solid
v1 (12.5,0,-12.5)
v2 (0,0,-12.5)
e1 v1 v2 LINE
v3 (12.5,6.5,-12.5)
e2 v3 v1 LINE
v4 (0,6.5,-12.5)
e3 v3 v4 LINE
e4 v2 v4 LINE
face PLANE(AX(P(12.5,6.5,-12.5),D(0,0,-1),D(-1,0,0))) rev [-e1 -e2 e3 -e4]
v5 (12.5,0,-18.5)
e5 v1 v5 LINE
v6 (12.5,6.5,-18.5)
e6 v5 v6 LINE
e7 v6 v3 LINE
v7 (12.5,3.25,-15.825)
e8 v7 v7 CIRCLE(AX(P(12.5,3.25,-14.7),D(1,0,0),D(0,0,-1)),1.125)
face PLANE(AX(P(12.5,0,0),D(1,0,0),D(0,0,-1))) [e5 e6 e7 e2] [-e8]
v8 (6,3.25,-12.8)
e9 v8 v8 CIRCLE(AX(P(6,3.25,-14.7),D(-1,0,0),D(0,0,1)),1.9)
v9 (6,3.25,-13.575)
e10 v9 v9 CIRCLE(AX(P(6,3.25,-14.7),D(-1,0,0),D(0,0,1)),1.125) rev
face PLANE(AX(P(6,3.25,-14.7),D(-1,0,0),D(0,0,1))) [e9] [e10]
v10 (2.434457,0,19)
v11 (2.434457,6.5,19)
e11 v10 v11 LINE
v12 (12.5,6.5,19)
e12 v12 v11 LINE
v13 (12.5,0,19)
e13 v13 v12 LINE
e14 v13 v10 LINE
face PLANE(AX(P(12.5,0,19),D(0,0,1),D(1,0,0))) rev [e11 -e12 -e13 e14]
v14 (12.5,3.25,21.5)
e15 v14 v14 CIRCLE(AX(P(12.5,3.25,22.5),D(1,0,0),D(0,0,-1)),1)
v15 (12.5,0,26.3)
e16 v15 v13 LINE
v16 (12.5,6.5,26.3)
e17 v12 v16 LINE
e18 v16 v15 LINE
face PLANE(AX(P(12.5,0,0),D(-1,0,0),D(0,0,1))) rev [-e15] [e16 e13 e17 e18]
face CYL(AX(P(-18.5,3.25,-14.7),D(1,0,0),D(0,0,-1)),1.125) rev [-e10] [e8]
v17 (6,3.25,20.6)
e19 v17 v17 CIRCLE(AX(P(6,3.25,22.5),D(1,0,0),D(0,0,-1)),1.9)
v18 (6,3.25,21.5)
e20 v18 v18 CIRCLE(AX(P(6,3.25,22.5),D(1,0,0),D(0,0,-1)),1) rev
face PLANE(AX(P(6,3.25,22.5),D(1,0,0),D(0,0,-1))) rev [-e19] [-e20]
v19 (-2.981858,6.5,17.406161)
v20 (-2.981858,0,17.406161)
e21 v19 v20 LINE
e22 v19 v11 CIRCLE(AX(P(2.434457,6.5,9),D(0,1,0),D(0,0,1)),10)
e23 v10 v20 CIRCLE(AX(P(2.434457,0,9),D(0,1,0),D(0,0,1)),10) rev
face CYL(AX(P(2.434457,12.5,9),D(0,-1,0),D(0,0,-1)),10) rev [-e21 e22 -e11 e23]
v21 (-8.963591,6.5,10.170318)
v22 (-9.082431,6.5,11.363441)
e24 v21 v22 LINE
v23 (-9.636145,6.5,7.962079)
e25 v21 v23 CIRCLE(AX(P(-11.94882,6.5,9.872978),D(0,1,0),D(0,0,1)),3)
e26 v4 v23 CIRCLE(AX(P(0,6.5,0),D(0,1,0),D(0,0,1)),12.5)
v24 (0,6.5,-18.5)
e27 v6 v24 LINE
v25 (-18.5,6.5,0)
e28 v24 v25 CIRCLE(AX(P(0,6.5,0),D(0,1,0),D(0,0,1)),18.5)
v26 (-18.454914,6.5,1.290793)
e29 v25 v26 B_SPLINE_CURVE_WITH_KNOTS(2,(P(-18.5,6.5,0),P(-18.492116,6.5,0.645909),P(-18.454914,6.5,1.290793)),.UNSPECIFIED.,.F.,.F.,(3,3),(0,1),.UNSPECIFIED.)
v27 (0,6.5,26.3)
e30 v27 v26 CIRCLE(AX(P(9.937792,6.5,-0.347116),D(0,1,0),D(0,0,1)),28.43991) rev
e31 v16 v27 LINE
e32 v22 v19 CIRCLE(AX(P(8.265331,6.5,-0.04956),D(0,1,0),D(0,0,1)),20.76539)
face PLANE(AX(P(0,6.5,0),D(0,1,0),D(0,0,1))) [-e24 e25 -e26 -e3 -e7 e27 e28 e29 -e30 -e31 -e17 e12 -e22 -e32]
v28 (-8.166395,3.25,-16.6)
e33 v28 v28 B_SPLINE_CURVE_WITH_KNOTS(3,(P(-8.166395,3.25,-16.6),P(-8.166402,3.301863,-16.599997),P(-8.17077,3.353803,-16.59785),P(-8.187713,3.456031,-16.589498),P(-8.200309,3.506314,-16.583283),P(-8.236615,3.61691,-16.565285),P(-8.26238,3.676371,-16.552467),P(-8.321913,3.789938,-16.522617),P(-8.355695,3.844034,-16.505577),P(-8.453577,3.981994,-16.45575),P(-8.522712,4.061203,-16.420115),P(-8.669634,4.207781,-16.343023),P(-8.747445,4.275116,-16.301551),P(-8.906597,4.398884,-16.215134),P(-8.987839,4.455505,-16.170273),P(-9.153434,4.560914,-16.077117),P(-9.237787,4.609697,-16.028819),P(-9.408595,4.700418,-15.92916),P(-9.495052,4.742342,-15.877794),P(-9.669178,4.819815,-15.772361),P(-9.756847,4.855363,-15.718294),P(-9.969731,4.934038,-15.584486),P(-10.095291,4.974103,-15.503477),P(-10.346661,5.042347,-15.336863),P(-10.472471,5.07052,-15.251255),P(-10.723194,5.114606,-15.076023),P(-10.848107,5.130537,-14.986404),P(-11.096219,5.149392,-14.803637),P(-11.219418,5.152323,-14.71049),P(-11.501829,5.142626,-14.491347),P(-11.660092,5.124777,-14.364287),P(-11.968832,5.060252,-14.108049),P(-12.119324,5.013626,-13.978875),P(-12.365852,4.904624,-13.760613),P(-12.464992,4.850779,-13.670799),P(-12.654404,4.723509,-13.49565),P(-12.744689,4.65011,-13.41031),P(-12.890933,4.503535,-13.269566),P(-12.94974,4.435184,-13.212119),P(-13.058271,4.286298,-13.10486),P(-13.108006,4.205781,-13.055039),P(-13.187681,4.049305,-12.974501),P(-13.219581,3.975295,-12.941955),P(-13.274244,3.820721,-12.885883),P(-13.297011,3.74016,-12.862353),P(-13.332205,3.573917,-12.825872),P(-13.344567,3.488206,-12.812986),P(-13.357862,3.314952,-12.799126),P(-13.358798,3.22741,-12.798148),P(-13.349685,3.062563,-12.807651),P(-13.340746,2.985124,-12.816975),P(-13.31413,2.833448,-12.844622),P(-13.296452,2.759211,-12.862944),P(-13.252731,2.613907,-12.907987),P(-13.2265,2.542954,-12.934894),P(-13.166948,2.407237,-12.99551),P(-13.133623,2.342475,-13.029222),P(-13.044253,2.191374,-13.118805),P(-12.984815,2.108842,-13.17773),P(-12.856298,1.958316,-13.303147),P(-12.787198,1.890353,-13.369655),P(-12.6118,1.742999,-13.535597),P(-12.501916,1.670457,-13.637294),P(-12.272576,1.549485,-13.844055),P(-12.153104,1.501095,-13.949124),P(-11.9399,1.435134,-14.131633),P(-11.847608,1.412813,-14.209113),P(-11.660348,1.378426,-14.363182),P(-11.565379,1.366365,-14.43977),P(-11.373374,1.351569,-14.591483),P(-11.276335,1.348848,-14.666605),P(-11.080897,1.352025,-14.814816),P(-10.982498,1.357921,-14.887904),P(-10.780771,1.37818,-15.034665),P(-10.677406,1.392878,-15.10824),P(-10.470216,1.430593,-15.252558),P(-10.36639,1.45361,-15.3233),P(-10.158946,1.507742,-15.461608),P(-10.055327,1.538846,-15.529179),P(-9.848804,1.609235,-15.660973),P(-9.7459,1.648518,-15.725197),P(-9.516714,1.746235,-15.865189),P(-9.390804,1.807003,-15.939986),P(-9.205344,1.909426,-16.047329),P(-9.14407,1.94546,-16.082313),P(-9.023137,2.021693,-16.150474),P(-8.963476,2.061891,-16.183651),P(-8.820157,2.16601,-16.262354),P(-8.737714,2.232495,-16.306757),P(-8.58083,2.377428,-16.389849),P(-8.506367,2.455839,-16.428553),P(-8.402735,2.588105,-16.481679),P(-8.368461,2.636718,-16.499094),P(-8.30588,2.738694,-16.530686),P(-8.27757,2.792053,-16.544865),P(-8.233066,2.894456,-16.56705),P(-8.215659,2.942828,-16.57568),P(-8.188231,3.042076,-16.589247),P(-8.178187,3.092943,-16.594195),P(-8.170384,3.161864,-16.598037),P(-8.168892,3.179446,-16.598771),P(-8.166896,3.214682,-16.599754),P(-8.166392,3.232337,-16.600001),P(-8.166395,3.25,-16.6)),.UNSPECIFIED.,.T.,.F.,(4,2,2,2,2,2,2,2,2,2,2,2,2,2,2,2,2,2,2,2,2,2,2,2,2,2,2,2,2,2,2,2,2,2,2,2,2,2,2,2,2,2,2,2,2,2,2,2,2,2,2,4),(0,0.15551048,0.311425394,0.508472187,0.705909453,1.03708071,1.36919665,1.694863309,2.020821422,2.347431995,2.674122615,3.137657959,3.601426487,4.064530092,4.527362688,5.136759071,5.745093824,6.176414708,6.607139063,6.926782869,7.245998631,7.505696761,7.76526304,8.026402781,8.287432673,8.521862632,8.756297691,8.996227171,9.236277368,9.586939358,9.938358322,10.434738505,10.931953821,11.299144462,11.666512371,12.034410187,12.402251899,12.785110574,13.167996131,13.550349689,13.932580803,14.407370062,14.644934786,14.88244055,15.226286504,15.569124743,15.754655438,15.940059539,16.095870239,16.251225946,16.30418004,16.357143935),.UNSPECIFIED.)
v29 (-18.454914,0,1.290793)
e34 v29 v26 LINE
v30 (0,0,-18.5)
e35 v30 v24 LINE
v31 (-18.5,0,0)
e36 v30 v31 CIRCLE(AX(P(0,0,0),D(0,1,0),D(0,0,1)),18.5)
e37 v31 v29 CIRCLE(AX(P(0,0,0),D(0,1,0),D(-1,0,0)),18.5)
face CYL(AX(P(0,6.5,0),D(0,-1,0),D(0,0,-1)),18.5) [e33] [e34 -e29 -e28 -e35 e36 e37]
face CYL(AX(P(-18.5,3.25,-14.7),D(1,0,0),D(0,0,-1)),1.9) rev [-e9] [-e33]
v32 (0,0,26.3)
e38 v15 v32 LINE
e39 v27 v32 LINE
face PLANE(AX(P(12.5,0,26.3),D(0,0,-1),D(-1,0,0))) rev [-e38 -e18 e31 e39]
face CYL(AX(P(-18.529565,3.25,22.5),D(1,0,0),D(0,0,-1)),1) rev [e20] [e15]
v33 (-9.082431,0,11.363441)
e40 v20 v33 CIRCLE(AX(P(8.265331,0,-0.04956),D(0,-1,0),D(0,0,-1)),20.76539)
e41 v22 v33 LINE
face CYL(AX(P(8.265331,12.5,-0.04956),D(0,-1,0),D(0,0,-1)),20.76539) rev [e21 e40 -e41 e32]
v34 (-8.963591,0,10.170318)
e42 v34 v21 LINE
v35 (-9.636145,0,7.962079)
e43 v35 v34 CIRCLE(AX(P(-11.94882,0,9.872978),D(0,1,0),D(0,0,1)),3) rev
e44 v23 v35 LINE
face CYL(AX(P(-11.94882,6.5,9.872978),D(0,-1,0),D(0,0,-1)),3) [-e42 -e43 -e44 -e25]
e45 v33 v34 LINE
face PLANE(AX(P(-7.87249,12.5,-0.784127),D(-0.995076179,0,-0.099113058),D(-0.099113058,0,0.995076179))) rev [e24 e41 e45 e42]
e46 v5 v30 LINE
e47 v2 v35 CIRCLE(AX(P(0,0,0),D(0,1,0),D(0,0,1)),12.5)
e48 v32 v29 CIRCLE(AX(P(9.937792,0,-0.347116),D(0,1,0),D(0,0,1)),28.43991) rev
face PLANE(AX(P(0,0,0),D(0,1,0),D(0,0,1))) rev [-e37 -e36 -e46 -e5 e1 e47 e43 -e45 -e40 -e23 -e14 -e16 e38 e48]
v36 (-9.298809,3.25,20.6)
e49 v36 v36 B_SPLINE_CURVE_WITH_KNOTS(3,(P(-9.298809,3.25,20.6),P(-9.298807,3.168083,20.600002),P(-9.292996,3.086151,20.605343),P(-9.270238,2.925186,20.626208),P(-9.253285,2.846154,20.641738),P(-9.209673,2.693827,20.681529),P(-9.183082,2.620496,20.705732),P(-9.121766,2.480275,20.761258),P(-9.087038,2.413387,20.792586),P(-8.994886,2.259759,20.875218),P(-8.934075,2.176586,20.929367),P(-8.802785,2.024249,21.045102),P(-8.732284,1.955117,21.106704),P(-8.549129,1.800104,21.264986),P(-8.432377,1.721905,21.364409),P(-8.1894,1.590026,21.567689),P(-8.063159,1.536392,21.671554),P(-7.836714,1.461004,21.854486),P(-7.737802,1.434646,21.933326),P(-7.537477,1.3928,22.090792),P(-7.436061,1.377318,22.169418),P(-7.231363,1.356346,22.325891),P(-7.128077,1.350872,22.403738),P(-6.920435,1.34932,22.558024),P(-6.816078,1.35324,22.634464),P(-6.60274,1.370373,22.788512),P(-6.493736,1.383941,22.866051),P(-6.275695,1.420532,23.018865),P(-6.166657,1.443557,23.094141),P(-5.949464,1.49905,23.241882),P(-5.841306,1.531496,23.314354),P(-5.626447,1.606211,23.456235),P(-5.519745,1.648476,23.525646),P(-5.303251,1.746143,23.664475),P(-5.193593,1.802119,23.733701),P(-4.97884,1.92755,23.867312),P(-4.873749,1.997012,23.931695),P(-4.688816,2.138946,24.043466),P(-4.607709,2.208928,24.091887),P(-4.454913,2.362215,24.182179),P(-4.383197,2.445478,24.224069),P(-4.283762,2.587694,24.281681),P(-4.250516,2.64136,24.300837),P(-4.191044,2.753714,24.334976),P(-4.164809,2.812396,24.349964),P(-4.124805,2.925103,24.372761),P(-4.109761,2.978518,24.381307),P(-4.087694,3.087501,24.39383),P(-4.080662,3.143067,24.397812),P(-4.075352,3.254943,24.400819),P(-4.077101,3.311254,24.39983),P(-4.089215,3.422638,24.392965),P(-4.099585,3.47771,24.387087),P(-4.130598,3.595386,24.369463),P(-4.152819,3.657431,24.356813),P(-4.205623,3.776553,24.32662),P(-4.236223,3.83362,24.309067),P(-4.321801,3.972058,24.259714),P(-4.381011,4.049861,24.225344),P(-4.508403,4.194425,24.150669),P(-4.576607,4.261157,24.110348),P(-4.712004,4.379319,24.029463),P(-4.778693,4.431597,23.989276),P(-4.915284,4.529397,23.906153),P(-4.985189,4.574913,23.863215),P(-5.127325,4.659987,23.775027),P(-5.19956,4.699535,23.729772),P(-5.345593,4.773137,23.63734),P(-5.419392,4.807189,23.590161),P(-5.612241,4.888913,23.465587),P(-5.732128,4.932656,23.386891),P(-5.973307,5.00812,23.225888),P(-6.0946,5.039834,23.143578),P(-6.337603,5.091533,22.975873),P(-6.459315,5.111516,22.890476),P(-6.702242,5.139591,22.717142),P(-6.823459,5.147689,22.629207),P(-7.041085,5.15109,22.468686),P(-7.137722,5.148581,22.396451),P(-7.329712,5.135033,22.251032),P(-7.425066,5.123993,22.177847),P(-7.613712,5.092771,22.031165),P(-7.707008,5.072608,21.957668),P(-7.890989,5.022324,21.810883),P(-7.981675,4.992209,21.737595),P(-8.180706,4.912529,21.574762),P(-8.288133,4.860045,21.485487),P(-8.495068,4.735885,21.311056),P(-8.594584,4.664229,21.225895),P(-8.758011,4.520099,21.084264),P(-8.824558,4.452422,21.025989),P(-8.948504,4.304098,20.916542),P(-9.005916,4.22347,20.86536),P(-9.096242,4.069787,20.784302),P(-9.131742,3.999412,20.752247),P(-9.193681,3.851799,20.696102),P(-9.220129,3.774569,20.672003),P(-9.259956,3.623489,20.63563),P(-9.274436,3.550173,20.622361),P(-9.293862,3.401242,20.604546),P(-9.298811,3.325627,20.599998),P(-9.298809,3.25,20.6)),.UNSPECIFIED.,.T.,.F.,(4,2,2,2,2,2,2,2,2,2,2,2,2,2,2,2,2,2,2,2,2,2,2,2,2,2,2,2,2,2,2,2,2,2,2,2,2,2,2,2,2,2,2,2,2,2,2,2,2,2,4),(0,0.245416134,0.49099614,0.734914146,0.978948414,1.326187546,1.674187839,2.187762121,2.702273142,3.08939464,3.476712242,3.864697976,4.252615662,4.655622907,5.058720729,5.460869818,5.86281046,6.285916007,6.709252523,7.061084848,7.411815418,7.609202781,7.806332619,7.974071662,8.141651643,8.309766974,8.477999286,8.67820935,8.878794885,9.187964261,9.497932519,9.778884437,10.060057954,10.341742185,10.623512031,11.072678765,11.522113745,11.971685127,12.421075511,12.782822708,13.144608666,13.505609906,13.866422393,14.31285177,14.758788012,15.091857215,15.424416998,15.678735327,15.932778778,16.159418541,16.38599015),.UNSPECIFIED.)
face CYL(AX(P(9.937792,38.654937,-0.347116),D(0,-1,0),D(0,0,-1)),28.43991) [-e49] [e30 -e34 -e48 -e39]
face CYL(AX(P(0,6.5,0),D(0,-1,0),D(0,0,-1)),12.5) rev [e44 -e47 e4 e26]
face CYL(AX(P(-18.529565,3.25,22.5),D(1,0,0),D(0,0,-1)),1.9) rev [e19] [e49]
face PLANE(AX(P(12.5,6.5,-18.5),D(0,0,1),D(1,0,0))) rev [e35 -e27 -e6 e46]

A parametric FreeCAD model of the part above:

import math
import FreeCAD as App
import Part
import Sketcher

V = App.Vector
Q = App.Units.Quantity


def edges_at(feature, points):
    """Names of the edges that pass closest to the given points."""
    edges = feature.Shape.Edges
    near = lambda p: min(range(len(edges)), key=lambda i: edges[i].distToShape(Part.Vertex(*p))[0])
    return sorted({f"Edge{near(p) + 1}" for p in points})

doc = App.newDocument("Part")
body = doc.addObject("PartDesign::Body", "Body")

sketch1 = body.newObject("Sketcher::SketchObject", "Sketch")
sketch1.AttachmentSupport = (doc.getObject("XZ_Plane"), [""])
sketch1.MapMode = "FlatFace"
sketch1.addGeometry(Part.Circle(V(0, 0, 0), V(0, 0, 1), 18), False)
sketch1.addGeometry(Part.Circle(V(0, 0, 0), V(0, 0, 1), 12), False)
sketch1.addConstraint(Sketcher.Constraint("Coincident", 0, 3, -1, 1))
sketch1.addConstraint(Sketcher.Constraint("Coincident", 1, 3, -1, 1))
sketch1.addConstraint(Sketcher.Constraint("Diameter", 0, Q("37 mm")))
sketch1.addConstraint(Sketcher.Constraint("Diameter", 1, Q("25 mm")))
pad1 = body.newObject("PartDesign::Pad", "Pad")
pad1.Profile = sketch1
pad1.Length = 6.5
pad1.Reversed = True

sketch2 = body.newObject("Sketcher::SketchObject", "Sketch001")
sketch2.AttachmentSupport = (doc.getObject("YZ_Plane"), [""])
sketch2.MapMode = "FlatFace"
sketch2.addGeometry(Part.Circle(V(0, 0, 0), V(0, 0, 1), 47), False)
sketch2.addConstraint(Sketcher.Constraint("Coincident", 0, 3, -1, 1))
sketch2.addConstraint(Sketcher.Constraint("Diameter", 0, Q("93.405729 mm")))
pocket1 = body.newObject("PartDesign::Pocket", "Pocket")
pocket1.Profile = sketch2
pocket1.Type = "ThroughAll"
pocket1.Reversed = True

sketch3 = body.newObject("Sketcher::SketchObject", "Sketch002")
sketch3.AttachmentSupport = (doc.getObject("YZ_Plane"), [""])
sketch3.MapMode = "FlatFace"
sketch3.addGeometry(Part.Circle(V(3.2, -14.7, 0), V(0, 0, 1), 1.1), False)
sketch3.addConstraint(Sketcher.Constraint("Diameter", 0, Q("2.25 mm")))
sketch3.addConstraint(Sketcher.Constraint("DistanceY", 0, 3, -1, 1, Q("14.7 mm")))
sketch3.addConstraint(Sketcher.Constraint("DistanceX", -1, 1, 0, 3, Q("3.25 mm")))
pocket2 = body.newObject("PartDesign::Pocket", "Pocket001")
pocket2.Profile = sketch3
pocket2.Type = "ThroughAll"
pocket2.Midplane = True

sketch4 = body.newObject("Sketcher::SketchObject", "Sketch003")
sketch4.AttachmentSupport = (doc.getObject("YZ_Plane"), [""])
sketch4.MapMode = "FlatFace"
sketch4.AttachmentOffset = App.Placement(V(0, 0, -6.5), App.Rotation())
sketch4.addGeometry(Part.Circle(V(3.2, -14.7, 0), V(0, 0, 1), 1.9), False)
sketch4.addConstraint(Sketcher.Constraint("Diameter", 0, Q("3.8 mm")))
sketch4.addConstraint(Sketcher.Constraint("DistanceY", 0, 3, -1, 1, Q("14.7 mm")))
sketch4.addConstraint(Sketcher.Constraint("DistanceX", -1, 1, 0, 3, Q("3.25 mm")))
pocket3 = body.newObject("PartDesign::Pocket", "Pocket002")
pocket3.Profile = sketch4
pocket3.Type = "ThroughAll"

sketch5 = body.newObject("Sketcher::SketchObject", "Sketch004")
sketch5.AttachmentSupport = (doc.getObject("YZ_Plane"), [""])
sketch5.MapMode = "FlatFace"
sketch5.AttachmentOffset = App.Placement(V(0, 0, 12.5), App.Rotation())
sketch5.addGeometry(Part.LineSegment(V(6.5, -12.5, 0), V(0, -12.5, 0)), False)
sketch5.addGeometry(Part.LineSegment(V(0, -12.5, 0), V(0, -18.5, 0)), False)
sketch5.addGeometry(Part.LineSegment(V(0, -18.5, 0), V(6.5, -18.5, 0)), False)
sketch5.addGeometry(Part.LineSegment(V(6.5, -18.5, 0), V(6.5, -12.5, 0)), False)
sketch5.addGeometry(Part.Circle(V(3.2, -14.7, 0), V(0, 0, 1), 1.1), False)
sketch5.addConstraint(Sketcher.Constraint("Coincident", 0, 2, 1, 1))
sketch5.addConstraint(Sketcher.Constraint("Coincident", 1, 2, 2, 1))
sketch5.addConstraint(Sketcher.Constraint("Coincident", 2, 2, 3, 1))
sketch5.addConstraint(Sketcher.Constraint("Coincident", 3, 2, 0, 1))
sketch5.addConstraint(Sketcher.Constraint("Horizontal", 0))
sketch5.addConstraint(Sketcher.Constraint("Vertical", 1))
sketch5.addConstraint(Sketcher.Constraint("Horizontal", 2))
sketch5.addConstraint(Sketcher.Constraint("Vertical", 3))
sketch5.addConstraint(Sketcher.Constraint("PointOnObject", 0, 2, -2))
sketch5.addConstraint(Sketcher.Constraint("Diameter", 4, Q("2.25 mm")))
sketch5.addConstraint(Sketcher.Constraint("DistanceY", 1, 2, 1, 1, Q("6 mm")))
sketch5.addConstraint(Sketcher.Constraint("DistanceX", 0, 2, 0, 1, Q("6.5 mm")))
sketch5.addConstraint(Sketcher.Constraint("DistanceY", 4, 3, -1, 1, Q("14.7 mm")))
sketch5.addConstraint(Sketcher.Constraint("DistanceY", 0, 2, -1, 1, Q("12.5 mm")))
sketch5.addConstraint(Sketcher.Constraint("DistanceX", -1, 1, 4, 3, Q("3.25 mm")))
pad2 = body.newObject("PartDesign::Pad", "Pad001")
pad2.Profile = sketch5
pad2.Length = 12.5
pad2.Reversed = True

sketch6 = body.newObject("Sketcher::SketchObject", "Sketch005")
sketch6.AttachmentSupport = (doc.getObject("YZ_Plane"), [""])
sketch6.MapMode = "FlatFace"
sketch6.AttachmentOffset = App.Placement(V(0, 0, 6), App.Rotation())
sketch6.addGeometry(Part.Circle(V(3.2, -14.7, 0), V(0, 0, 1), 1.9), False)
sketch6.addConstraint(Sketcher.Constraint("Diameter", 0, Q("3.8 mm")))
sketch6.addConstraint(Sketcher.Constraint("DistanceY", 0, 3, -1, 1, Q("14.7 mm")))
sketch6.addConstraint(Sketcher.Constraint("DistanceX", -1, 1, 0, 3, Q("3.25 mm")))
pocket4 = body.newObject("PartDesign::Pocket", "Pocket003")
pocket4.Profile = sketch6
pocket4.Length = 12.5

sketch7 = body.newObject("Sketcher::SketchObject", "Sketch006")
sketch7.AttachmentSupport = (doc.getObject("XZ_Plane"), [""])
sketch7.MapMode = "FlatFace"
sketch7.addGeometry(Part.LineSegment(V(0, 26, 0), V(0, 18, 0)), False)
sketch7.addGeometry(Part.ArcOfCircle(Part.Circle(V(0, 0, 0), V(0, 0, 1), 19), math.radians(91), math.radians(179)), False)
sketch7.addGeometry(Part.ArcOfCircle(Part.Circle(V(10, 0, 0), V(0, 0, 1), 28), math.radians(110), math.radians(179)), False)
sketch7.addConstraint(Sketcher.Constraint("Coincident", 0, 2, 1, 1))
sketch7.addConstraint(Sketcher.Constraint("Tangent", 1, 2, 2, 2))
sketch7.addConstraint(Sketcher.Constraint("Coincident", 2, 1, 0, 1))
sketch7.addConstraint(Sketcher.Constraint("Vertical", 0))
sketch7.addConstraint(Sketcher.Constraint("PointOnObject", 0, 2, -2))
sketch7.addConstraint(Sketcher.Constraint("PointOnObject", 1, 2, -1))
sketch7.addConstraint(Sketcher.Constraint("Radius", 1, Q("18.729999 mm")))
sketch7.addConstraint(Sketcher.Constraint("DistanceY", 0, 2, 0, 1, Q("7.8 mm")))
sketch7.addConstraint(Sketcher.Constraint("DistanceY", -1, 1, 0, 2, Q("18.5 mm")))
sketch7.addConstraint(Sketcher.Constraint("DistanceX", 1, 2, -1, 1, Q("18.5 mm")))
pad3 = body.newObject("PartDesign::Pad", "Pad002")
pad3.Profile = sketch7
pad3.Length = 6.5
pad3.Reversed = True

sketch8 = body.newObject("Sketcher::SketchObject", "Sketch007")
sketch8.AttachmentSupport = (doc.getObject("XZ_Plane"), [""])
sketch8.MapMode = "FlatFace"
sketch8.addGeometry(Part.ArcOfCircle(Part.Circle(V(0, 0, 0), V(0, 0, 1), 12.5), math.radians(90), math.radians(135)), False)
sketch8.addGeometry(Part.LineSegment(V(0, 12.5, 0), V(0, 19, 0)), False)
sketch8.addGeometry(Part.ArcOfCircle(Part.Circle(V(8.3, 0, 0), V(0, 0, 1), 20.8), math.radians(113), math.radians(147)), False)
sketch8.addGeometry(Part.LineSegment(V(-9.1, 11.4, 0), V(-8.8, 8.8, 0)), False)
sketch8.addConstraint(Sketcher.Constraint("Coincident", 0, 1, 1, 1))
sketch8.addConstraint(Sketcher.Constraint("Coincident", 1, 2, 2, 1))
sketch8.addConstraint(Sketcher.Constraint("Coincident", 2, 2, 3, 1))
sketch8.addConstraint(Sketcher.Constraint("Coincident", 3, 2, 0, 2))
sketch8.addConstraint(Sketcher.Constraint("Vertical", 1))
sketch8.addConstraint(Sketcher.Constraint("Coincident", 0, 3, -1, 1))
sketch8.addConstraint(Sketcher.Constraint("PointOnObject", 0, 1, -2))
sketch8.addConstraint(Sketcher.Constraint("Radius", 0, Q("12.5 mm")))
sketch8.addConstraint(Sketcher.Constraint("DistanceY", 1, 1, 1, 2, Q("6.5 mm")))
sketch8.addConstraint(Sketcher.Constraint("Radius", 2, Q("20.76539 mm")))
sketch8.addConstraint(Sketcher.Constraint("DistanceY", 2, 3, 2, 2, Q("11.413001 mm")))
sketch8.addConstraint(Sketcher.Constraint("DistanceX", -1, 1, 2, 3, Q("8.265331 mm")))
sketch8.addConstraint(Sketcher.Constraint("DistanceY", -1, 1, 3, 2, Q("8.845981 mm")))
pocket5 = body.newObject("PartDesign::Pocket", "Pocket004")
pocket5.Profile = sketch8
pocket5.Length = 12.5
doc.recompute()

fillet = body.newObject("PartDesign::Fillet", "Fillet")
fillet.Base = (pocket5, edges_at(pocket5, [(-8.832, 3.25, 8.846)]))
fillet.Radius = 3

sketch9 = body.newObject("Sketcher::SketchObject", "Sketch008")
sketch9.AttachmentSupport = (doc.getObject("YZ_Plane"), [""])
sketch9.MapMode = "FlatFace"
sketch9.addGeometry(Part.Circle(V(3.2, 22.5, 0), V(0, 0, 1), 1), False)
sketch9.addConstraint(Sketcher.Constraint("Diameter", 0, Q("2 mm")))
sketch9.addConstraint(Sketcher.Constraint("DistanceY", -1, 1, 0, 3, Q("22.5 mm")))
sketch9.addConstraint(Sketcher.Constraint("DistanceX", -1, 1, 0, 3, Q("3.25 mm")))
pocket6 = body.newObject("PartDesign::Pocket", "Pocket005")
pocket6.Profile = sketch9
pocket6.Type = "ThroughAll"

sketch10 = body.newObject("Sketcher::SketchObject", "Sketch009")
sketch10.AttachmentSupport = (doc.getObject("YZ_Plane"), [""])
sketch10.MapMode = "FlatFace"
sketch10.AttachmentOffset = App.Placement(V(0, 0, 12.5), App.Rotation())
sketch10.addGeometry(Part.LineSegment(V(6.5, 26.3, 0), V(0, 26.3, 0)), False)
sketch10.addGeometry(Part.LineSegment(V(0, 26.3, 0), V(0, 19, 0)), False)
sketch10.addGeometry(Part.LineSegment(V(0, 19, 0), V(6.5, 19, 0)), False)
sketch10.addGeometry(Part.LineSegment(V(6.5, 19, 0), V(6.5, 26.3, 0)), False)
sketch10.addGeometry(Part.Circle(V(3.2, 22.5, 0), V(0, 0, 1), 1), False)
sketch10.addConstraint(Sketcher.Constraint("Coincident", 0, 2, 1, 1))
sketch10.addConstraint(Sketcher.Constraint("Coincident", 1, 2, 2, 1))
sketch10.addConstraint(Sketcher.Constraint("Coincident", 2, 2, 3, 1))
sketch10.addConstraint(Sketcher.Constraint("Coincident", 3, 2, 0, 1))
sketch10.addConstraint(Sketcher.Constraint("Horizontal", 0))
sketch10.addConstraint(Sketcher.Constraint("Vertical", 1))
sketch10.addConstraint(Sketcher.Constraint("Horizontal", 2))
sketch10.addConstraint(Sketcher.Constraint("Vertical", 3))
sketch10.addConstraint(Sketcher.Constraint("PointOnObject", 0, 2, -2))
sketch10.addConstraint(Sketcher.Constraint("Diameter", 4, Q("2 mm")))
sketch10.addConstraint(Sketcher.Constraint("DistanceX", 0, 2, 0, 1, Q("6.5 mm")))
sketch10.addConstraint(Sketcher.Constraint("DistanceY", 1, 2, 1, 1, Q("7.3 mm")))
sketch10.addConstraint(Sketcher.Constraint("DistanceY", -1, 1, 1, 2, Q("19 mm")))
sketch10.addConstraint(Sketcher.Constraint("DistanceY", -1, 1, 4, 3, Q("22.5 mm")))
sketch10.addConstraint(Sketcher.Constraint("DistanceX", -1, 1, 4, 3, Q("3.25 mm")))
pad4 = body.newObject("PartDesign::Pad", "Pad003")
pad4.Profile = sketch10
pad4.Length = 12.5
pad4.Reversed = True
doc.recompute()

fillet2 = body.newObject("PartDesign::Fillet", "Fillet001")
fillet2.Base = (pad4, edges_at(pad4, [(0, 3.25, 19)]))
fillet2.Radius = 10

sketch11 = body.newObject("Sketcher::SketchObject", "Sketch010")
sketch11.AttachmentSupport = (doc.getObject("YZ_Plane"), [""])
sketch11.MapMode = "FlatFace"
sketch11.AttachmentOffset = App.Placement(V(0, 0, 6), App.Rotation())
sketch11.addGeometry(Part.Circle(V(3.2, 22.5, 0), V(0, 0, 1), 1.9), False)
sketch11.addConstraint(Sketcher.Constraint("Diameter", 0, Q("3.8 mm")))
sketch11.addConstraint(Sketcher.Constraint("DistanceY", -1, 1, 0, 3, Q("22.5 mm")))
sketch11.addConstraint(Sketcher.Constraint("DistanceX", -1, 1, 0, 3, Q("3.25 mm")))
pocket7 = body.newObject("PartDesign::Pocket", "Pocket006")
pocket7.Profile = sketch11
pocket7.Type = "ThroughAll"

doc.recompute()
